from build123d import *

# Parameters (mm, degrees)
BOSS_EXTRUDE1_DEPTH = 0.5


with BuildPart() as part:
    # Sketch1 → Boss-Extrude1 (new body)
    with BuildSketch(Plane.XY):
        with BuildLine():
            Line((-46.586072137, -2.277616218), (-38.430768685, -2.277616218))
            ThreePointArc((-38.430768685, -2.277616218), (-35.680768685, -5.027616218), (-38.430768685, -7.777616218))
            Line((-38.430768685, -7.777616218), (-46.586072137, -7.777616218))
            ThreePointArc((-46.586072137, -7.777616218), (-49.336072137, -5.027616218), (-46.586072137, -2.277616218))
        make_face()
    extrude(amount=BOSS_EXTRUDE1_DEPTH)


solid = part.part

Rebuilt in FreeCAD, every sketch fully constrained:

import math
import FreeCAD as App
import Part
import Sketcher
from FreeCAD import Vector

doc = App.newDocument("Part")
params = doc.addObject("Spreadsheet::Sheet", "Params")
for row, (alias, value) in enumerate([
    ("sketch1_radius", "2.75 mm"),
    ("pad1_length", "0.5 mm"),
], start=1):
    params.set(f"A{row}", alias)
    params.set(f"B{row}", "=" + value)
    params.setAlias(f"B{row}", alias)

body = doc.addObject("PartDesign::Body", "Body")

sketch1 = doc.addObject("Sketcher::SketchObject", "Sketch")
body.addObject(sketch1)
sketch1.AttachmentSupport = (doc.XY_Plane, [""])
sketch1.MapMode = "FlatFace"
sketch1.addGeometry([
    Part.LineSegment(Vector(-38.4, -2.3, 0), Vector(-46.6, -2.3, 0)),
    Part.ArcOfCircle(Part.Circle(Vector(-46.6, -5, 0), Vector(0, 0, 1), 2.8), math.radians(90), math.radians(270)),
    Part.LineSegment(Vector(-46.6, -7.8, 0), Vector(-38.4, -7.8, 0)),
    Part.ArcOfCircle(Part.Circle(Vector(-38.4, -5, 0), Vector(0, 0, 1), 2.8), math.radians(-90), math.radians(90)),
], False)
sketch1.addConstraint([
    Sketcher.Constraint("Tangent", 0, 2, 1, 1),
    Sketcher.Constraint("Tangent", 1, 2, 2, 1),
    Sketcher.Constraint("Tangent", 2, 2, 3, 1),
    Sketcher.Constraint("Tangent", 3, 2, 0, 1),
    Sketcher.Constraint("Horizontal", 0),
    Sketcher.Constraint("Horizontal", 2),
    Sketcher.Constraint("Radius", 1, 2.75),
    Sketcher.Constraint("DistanceX", 0, 2, 0, 1, 8.155303),
    Sketcher.Constraint("DistanceX", 3, 3, -1, 1, 38.430769),
    Sketcher.Constraint("DistanceY", 1, 3, -1, 1, 5.027616),
])
sketch1.setExpression("Constraints[6]", "Params.sketch1_radius")
pad1 = doc.addObject("PartDesign::Pad", "Pad")
body.addObject(pad1)
pad1.Profile = sketch1
pad1.setExpression("Length", "Params.pad1_length")

doc.recompute()
